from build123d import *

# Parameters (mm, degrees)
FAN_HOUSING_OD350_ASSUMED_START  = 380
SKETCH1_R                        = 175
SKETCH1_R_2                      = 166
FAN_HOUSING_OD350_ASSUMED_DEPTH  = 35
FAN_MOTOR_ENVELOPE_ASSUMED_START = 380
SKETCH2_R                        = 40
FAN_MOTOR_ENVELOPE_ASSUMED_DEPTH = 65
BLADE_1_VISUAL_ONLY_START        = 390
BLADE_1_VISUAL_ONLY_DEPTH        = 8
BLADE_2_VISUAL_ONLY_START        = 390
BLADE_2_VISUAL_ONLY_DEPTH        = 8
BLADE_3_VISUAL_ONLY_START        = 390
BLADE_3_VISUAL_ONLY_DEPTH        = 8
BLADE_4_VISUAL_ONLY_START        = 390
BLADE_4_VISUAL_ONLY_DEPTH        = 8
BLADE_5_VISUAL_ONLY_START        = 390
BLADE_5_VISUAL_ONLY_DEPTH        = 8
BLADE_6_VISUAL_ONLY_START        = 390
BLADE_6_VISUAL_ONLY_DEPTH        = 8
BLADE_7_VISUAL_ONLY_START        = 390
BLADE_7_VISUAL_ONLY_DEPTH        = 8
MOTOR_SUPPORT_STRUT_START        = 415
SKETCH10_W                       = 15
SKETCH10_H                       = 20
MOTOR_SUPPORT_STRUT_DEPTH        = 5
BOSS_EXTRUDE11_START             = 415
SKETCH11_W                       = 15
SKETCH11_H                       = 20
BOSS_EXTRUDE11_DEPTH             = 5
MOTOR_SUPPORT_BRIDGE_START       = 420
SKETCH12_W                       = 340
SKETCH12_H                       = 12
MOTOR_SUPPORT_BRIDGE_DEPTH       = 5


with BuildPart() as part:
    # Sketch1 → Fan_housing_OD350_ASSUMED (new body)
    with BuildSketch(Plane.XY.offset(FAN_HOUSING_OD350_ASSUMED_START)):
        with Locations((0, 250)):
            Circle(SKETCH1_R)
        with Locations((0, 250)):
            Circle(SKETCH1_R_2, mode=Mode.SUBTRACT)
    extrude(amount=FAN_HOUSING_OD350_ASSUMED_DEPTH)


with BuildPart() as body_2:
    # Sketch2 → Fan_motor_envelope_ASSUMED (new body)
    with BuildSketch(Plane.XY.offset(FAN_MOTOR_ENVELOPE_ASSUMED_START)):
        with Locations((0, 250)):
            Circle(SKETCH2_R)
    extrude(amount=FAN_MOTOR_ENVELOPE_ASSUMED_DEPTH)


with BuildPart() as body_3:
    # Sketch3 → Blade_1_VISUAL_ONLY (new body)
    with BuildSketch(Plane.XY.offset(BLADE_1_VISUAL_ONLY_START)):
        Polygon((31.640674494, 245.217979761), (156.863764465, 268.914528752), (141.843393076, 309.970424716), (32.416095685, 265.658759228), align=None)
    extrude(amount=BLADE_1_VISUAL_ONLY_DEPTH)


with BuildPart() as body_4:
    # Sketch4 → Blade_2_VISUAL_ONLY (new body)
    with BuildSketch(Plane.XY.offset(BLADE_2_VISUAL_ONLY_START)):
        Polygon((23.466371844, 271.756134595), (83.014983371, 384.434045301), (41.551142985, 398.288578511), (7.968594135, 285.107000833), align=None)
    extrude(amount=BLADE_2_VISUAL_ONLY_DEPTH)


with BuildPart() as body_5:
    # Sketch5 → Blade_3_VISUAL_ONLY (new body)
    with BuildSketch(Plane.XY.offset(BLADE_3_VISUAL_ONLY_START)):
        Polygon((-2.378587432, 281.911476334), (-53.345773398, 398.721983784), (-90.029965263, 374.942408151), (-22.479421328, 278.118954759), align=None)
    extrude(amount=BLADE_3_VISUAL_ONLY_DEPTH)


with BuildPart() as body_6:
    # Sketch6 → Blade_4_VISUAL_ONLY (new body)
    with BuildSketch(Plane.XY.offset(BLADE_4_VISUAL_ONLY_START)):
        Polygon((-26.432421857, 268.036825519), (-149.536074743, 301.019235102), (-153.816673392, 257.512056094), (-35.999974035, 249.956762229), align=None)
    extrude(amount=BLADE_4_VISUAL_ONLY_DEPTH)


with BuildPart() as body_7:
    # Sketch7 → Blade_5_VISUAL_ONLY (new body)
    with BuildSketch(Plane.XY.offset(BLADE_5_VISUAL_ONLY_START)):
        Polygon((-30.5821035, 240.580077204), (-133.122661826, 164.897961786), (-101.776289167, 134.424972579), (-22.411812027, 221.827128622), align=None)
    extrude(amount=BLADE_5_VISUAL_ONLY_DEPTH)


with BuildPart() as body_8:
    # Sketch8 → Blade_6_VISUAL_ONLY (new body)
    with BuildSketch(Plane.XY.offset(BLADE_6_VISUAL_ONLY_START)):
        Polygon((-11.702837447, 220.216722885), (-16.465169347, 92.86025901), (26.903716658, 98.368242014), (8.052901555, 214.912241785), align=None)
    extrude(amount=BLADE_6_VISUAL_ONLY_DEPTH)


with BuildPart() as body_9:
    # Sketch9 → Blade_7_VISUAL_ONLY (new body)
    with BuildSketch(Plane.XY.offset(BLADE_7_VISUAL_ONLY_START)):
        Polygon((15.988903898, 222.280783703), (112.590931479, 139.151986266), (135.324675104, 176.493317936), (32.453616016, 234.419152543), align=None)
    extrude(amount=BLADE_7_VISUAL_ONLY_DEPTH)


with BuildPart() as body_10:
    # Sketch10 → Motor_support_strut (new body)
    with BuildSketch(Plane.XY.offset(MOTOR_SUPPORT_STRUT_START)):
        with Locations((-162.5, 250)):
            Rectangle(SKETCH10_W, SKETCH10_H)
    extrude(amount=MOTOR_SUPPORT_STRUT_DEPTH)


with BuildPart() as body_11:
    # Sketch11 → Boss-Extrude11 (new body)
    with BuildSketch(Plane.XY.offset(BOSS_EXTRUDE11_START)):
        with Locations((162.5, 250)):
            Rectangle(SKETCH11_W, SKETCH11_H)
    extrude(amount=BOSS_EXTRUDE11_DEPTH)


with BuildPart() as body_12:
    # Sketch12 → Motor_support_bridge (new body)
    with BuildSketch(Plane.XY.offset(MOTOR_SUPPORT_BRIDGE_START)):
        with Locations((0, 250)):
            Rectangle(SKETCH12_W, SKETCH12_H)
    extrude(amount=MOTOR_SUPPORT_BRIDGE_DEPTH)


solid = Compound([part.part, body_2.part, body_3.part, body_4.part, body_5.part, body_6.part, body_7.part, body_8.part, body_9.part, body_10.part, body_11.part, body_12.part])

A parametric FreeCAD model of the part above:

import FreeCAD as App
import Part
import Sketcher
from FreeCAD import Vector


def add_polygon(sketch, points):
    """Adds a closed chain of lines whose ends are joined by coincident constraints."""
    first, n = sketch.GeometryCount, len(points)
    for a, b in zip(points, points[1:] + points[:1]):
        sketch.addGeometry(Part.LineSegment(App.Vector(*a, 0), App.Vector(*b, 0)), False)
    for i in range(n):
        sketch.addConstraint(Sketcher.Constraint("Coincident", first + i, 2, first + (i + 1) % n, 1))

doc = App.newDocument("Part")
body = doc.addObject("PartDesign::Body", "Body")

# Sketch on XY plane
sketch1 = doc.addObject("Sketcher::SketchObject", "Sketch")
body.addObject(sketch1)
sketch1.AttachmentSupport = (doc.XY_Plane, [""])
sketch1.MapMode = "FlatFace"
sketch1.AttachmentOffset = App.Placement(Vector(0, 0, 380), App.Rotation())
sketch1.addGeometry([
    Part.Circle(Vector(0, 250, 0), Vector(0, 0, 1), 175),
    Part.Circle(Vector(0, 250, 0), Vector(0, 0, 1), 166),
], False)
sketch1.addConstraint([
    Sketcher.Constraint("Coincident", 1, 3, 0, 3),
    Sketcher.Constraint("PointOnObject", 0, 3, -2),
    Sketcher.Constraint("Diameter", 0, 350.0),
    Sketcher.Constraint("Diameter", 1, 332.0),
    Sketcher.Constraint("DistanceY", -1, 1, 0, 3, 250.0),
])
pad1 = doc.addObject("PartDesign::Pad", "Pad")
body.addObject(pad1)
pad1.Profile = sketch1
pad1.Length = 35
body2 = doc.addObject("PartDesign::Body", "Body001")

# Sketch on XY plane
sketch2 = doc.addObject("Sketcher::SketchObject", "Sketch001")
body2.addObject(sketch2)
sketch2.AttachmentSupport = (doc.getObject("XY_Plane001"), [""])
sketch2.MapMode = "FlatFace"
sketch2.AttachmentOffset = App.Placement(Vector(0, 0, 380), App.Rotation())
sketch2.addGeometry(Part.Circle(Vector(0, 250, 0), Vector(0, 0, 1), 40), False)
sketch2.addConstraint([
    Sketcher.Constraint("PointOnObject", 0, 3, -2),
    Sketcher.Constraint("Diameter", 0, 80.0),
    Sketcher.Constraint("DistanceY", -1, 1, 0, 3, 250.0),
])
pad2 = doc.addObject("PartDesign::Pad", "Pad001")
body2.addObject(pad2)
pad2.Profile = sketch2
pad2.Length = 65
body3 = doc.addObject("PartDesign::Body", "Body002")

# Sketch on XY plane
sketch3 = doc.addObject("Sketcher::SketchObject", "Sketch002")
body3.addObject(sketch3)
sketch3.AttachmentSupport = (doc.getObject("XY_Plane002"), [""])
sketch3.MapMode = "FlatFace"
sketch3.AttachmentOffset = App.Placement(Vector(0, 0, 390), App.Rotation())
add_polygon(sketch3, [(31.640674, 245.21798), (156.863764, 268.914529), (141.843393, 309.970425), (32.416096, 265.658759)])  # lines 0-3
sketch3.addConstraint([
    Sketcher.Constraint("Distance", 2, 118.058702),
    Sketcher.Constraint("Distance", 3, 20.455482),
    Sketcher.Constraint("DistanceY", -1, 1, 0, 2, 268.914529),
    Sketcher.Constraint("DistanceY", -1, 1, 2, 2, 265.658759),
    Sketcher.Constraint("DistanceY", -1, 1, 3, 2, 245.21798),
    Sketcher.Constraint("DistanceX", 1, 2, 0, 2, 15.020371),
    Sketcher.Constraint("DistanceX", 2, 2, 0, 2, 124.447669),
    Sketcher.Constraint("DistanceX", -1, 1, 0, 2, 156.863764),
])
pad3 = doc.addObject("PartDesign::Pad", "Pad002")
body3.addObject(pad3)
pad3.Profile = sketch3
pad3.Length = 8
body4 = doc.addObject("PartDesign::Body", "Body003")

# Sketch on XY plane
sketch4 = doc.addObject("Sketcher::SketchObject", "Sketch003")
body4.addObject(sketch4)
sketch4.AttachmentSupport = (doc.getObject("XY_Plane003"), [""])
sketch4.MapMode = "FlatFace"
sketch4.AttachmentOffset = App.Placement(Vector(0, 0, 390), App.Rotation())
add_polygon(sketch4, [(23, 272), (83, 384), (42, 398), (8, 285)])  # lines 0-3
sketch4.addConstraint([
    Sketcher.Constraint("DistanceY", -1, 1, 2, 2, 285.107001),
    Sketcher.Constraint("Distance", 2, 118.058702),
    Sketcher.Constraint("Distance", 3, 20.455482),
    Sketcher.Constraint("DistanceY", -1, 1, 1, 2, 398.288579),
    Sketcher.Constraint("DistanceX", -1, 1, 3, 2, 23.466372),
    Sketcher.Constraint("DistanceX", 1, 2, 0, 2, 41.46384),
    Sketcher.Constraint("DistanceX", 3, 2, 0, 2, 59.548612),
    Sketcher.Constraint("DistanceY", 3, 2, 0, 2, 112.677911),
])
pad4 = doc.addObject("PartDesign::Pad", "Pad003")
body4.addObject(pad4)
pad4.Profile = sketch4
pad4.Length = 8
body5 = doc.addObject("PartDesign::Body", "Body004")

# Sketch on XY plane
sketch5 = doc.addObject("Sketcher::SketchObject", "Sketch004")
body5.addObject(sketch5)
sketch5.AttachmentSupport = (doc.getObject("XY_Plane004"), [""])
sketch5.MapMode = "FlatFace"
sketch5.AttachmentOffset = App.Placement(Vector(0, 0, 390), App.Rotation())
add_polygon(sketch5, [(-2, 282), (-53, 399), (-90, 375), (-22, 278)])  # lines 0-3
sketch5.addConstraint([
    Sketcher.Constraint("Distance", 2, 118.058702),
    Sketcher.Constraint("Distance", 3, 20.455482),
    Sketcher.Constraint("DistanceY", -1, 1, 1, 2, 374.942408),
    Sketcher.Constraint("DistanceX", 2, 2, -1, 1, 22.479421),
    Sketcher.Constraint("DistanceX", 1, 2, 0, 2, 36.684192),
    Sketcher.Constraint("DistanceY", 2, 2, 0, 2, 120.603029),
    Sketcher.Constraint("DistanceY", 2, 2, 3, 2, 3.792522),
    Sketcher.Constraint("DistanceY", 3, 2, 1, 2, 93.030932),
])
pad5 = doc.addObject("PartDesign::Pad", "Pad004")
body5.addObject(pad5)
pad5.Profile = sketch5
pad5.Length = 8
body6 = doc.addObject("PartDesign::Body", "Body005")

# Sketch on XY plane
sketch6 = doc.addObject("Sketcher::SketchObject", "Sketch005")
body6.addObject(sketch6)
sketch6.AttachmentSupport = (doc.getObject("XY_Plane005"), [""])
sketch6.MapMode = "FlatFace"
sketch6.AttachmentOffset = App.Placement(Vector(0, 0, 390), App.Rotation())
add_polygon(sketch6, [(-26, 268), (-150, 301), (-154, 258), (-36, 250)])  # lines 0-3
sketch6.addConstraint([
    Sketcher.Constraint("Distance", 2, 118.058702),
    Sketcher.Constraint("DistanceX", 1, 2, 0, 2, 4.280599),
    Sketcher.Constraint("DistanceX", 1, 2, 2, 2, 117.816699),
    Sketcher.Constraint("Distance", 3, 20.455482),
    Sketcher.Constraint("DistanceX", 3, 2, -1, 1, 26.432422),
    Sketcher.Constraint("DistanceY", 1, 2, 0, 2, 43.507179),
    Sketcher.Constraint("DistanceY", 3, 2, 0, 2, 32.98241),
    Sketcher.Constraint("DistanceY", -1, 1, 0, 2, 301.019235),
])
pad6 = doc.addObject("PartDesign::Pad", "Pad005")
body6.addObject(pad6)
pad6.Profile = sketch6
pad6.Length = 8
body7 = doc.addObject("PartDesign::Body", "Body006")

# Sketch on XY plane
sketch7 = doc.addObject("Sketcher::SketchObject", "Sketch006")
body7.addObject(sketch7)
sketch7.AttachmentSupport = (doc.getObject("XY_Plane006"), [""])
sketch7.MapMode = "FlatFace"
sketch7.AttachmentOffset = App.Placement(Vector(0, 0, 390), App.Rotation())
add_polygon(sketch7, [(-31, 241), (-133, 165), (-102, 134), (-22, 222)])  # lines 0-3
sketch7.addConstraint([
    Sketcher.Constraint("Distance", 2, 118.058702),
    Sketcher.Constraint("Distance", 3, 20.455482),
    Sketcher.Constraint("DistanceX", 0, 2, -1, 1, 133.122662),
    Sketcher.Constraint("DistanceY", -1, 1, 0, 2, 164.897962),
    Sketcher.Constraint("DistanceX", 1, 2, -1, 1, 101.776289),
    Sketcher.Constraint("DistanceY", -1, 1, 2, 2, 221.827129),
    Sketcher.Constraint("DistanceY", 1, 2, 0, 2, 30.472989),
    Sketcher.Constraint("DistanceX", 3, 2, 2, 2, 8.170291),
])
pad7 = doc.addObject("PartDesign::Pad", "Pad006")
body7.addObject(pad7)
pad7.Profile = sketch7
pad7.Length = 8
body8 = doc.addObject("PartDesign::Body", "Body007")

# Sketch on XY plane
sketch8 = doc.addObject("Sketcher::SketchObject", "Sketch007")
body8.addObject(sketch8)
sketch8.AttachmentSupport = (doc.getObject("XY_Plane007"), [""])
sketch8.MapMode = "FlatFace"
sketch8.AttachmentOffset = App.Placement(Vector(0, 0, 390), App.Rotation())
add_polygon(sketch8, [(-12, 220), (-16, 93), (27, 98), (8, 215)])  # lines 0-3
sketch8.addConstraint([
    Sketcher.Constraint("DistanceY", 1, 2, 2, 2, 116.544),
    Sketcher.Constraint("Distance", 2, 118.058702),
    Sketcher.Constraint("DistanceX", -1, 1, 2, 2, 8.052902),
    Sketcher.Constraint("Distance", 3, 20.455482),
    Sketcher.Constraint("DistanceX", 0, 2, -1, 1, 16.465169),
    Sketcher.Constraint("DistanceY", -1, 1, 0, 2, 92.860259),
    Sketcher.Constraint("DistanceY", -1, 1, 2, 2, 214.912242),
    Sketcher.Constraint("DistanceX", 3, 2, 2, 2, 19.755739),
])
pad8 = doc.addObject("PartDesign::Pad", "Pad007")
body8.addObject(pad8)
pad8.Profile = sketch8
pad8.Length = 8
body9 = doc.addObject("PartDesign::Body", "Body008")

# Sketch on XY plane
sketch9 = doc.addObject("Sketcher::SketchObject", "Sketch008")
body9.addObject(sketch9)
sketch9.AttachmentSupport = (doc.getObject("XY_Plane008"), [""])
sketch9.MapMode = "FlatFace"
sketch9.AttachmentOffset = App.Placement(Vector(0, 0, 390), App.Rotation())
add_polygon(sketch9, [(16, 222), (113, 139), (135, 176), (32, 234)])  # lines 0-3
sketch9.addConstraint([
    Sketcher.Constraint("Distance", 2, 118.058702),
    Sketcher.Constraint("Distance", 3, 20.455482),
    Sketcher.Constraint("DistanceX", -1, 1, 0, 2, 112.590931),
    Sketcher.Constraint("DistanceY", 0, 2, 1, 2, 37.341332),
    Sketcher.Constraint("DistanceX", 2, 2, 1, 2, 102.871059),
    Sketcher.Constraint("DistanceY", 3, 2, 2, 2, 12.138369),
    Sketcher.Constraint("Distance", 0, 127.445473),
    Sketcher.Constraint("DistanceY", -1, 1, 0, 2, 139.151986),
])
pad9 = doc.addObject("PartDesign::Pad", "Pad008")
body9.addObject(pad9)
pad9.Profile = sketch9
pad9.Length = 8
body10 = doc.addObject("PartDesign::Body", "Body009")

# Sketch on XY plane
sketch10 = doc.addObject("Sketcher::SketchObject", "Sketch009")
body10.addObject(sketch10)
sketch10.AttachmentSupport = (doc.getObject("XY_Plane009"), [""])
sketch10.MapMode = "FlatFace"
sketch10.AttachmentOffset = App.Placement(Vector(0, 0, 415), App.Rotation())
add_polygon(sketch10, [(-170, 260), (-170, 240), (-155, 240), (-155, 260)])  # lines 0-3
sketch10.addConstraint([
    Sketcher.Constraint("Vertical", 0),
    Sketcher.Constraint("Horizontal", 1),
    Sketcher.Constraint("Vertical", 2),
    Sketcher.Constraint("Horizontal", 3),
    Sketcher.Constraint("DistanceX", 1, 1, 1, 2, 15.0),
    Sketcher.Constraint("DistanceY", 0, 2, 0, 1, 20.0),
    Sketcher.Constraint("DistanceX", 0, 2, -1, 1, 170.0),
    Sketcher.Constraint("DistanceY", -1, 1, 0, 2, 240.0),
])
pad10 = doc.addObject("PartDesign::Pad", "Pad009")
body10.addObject(pad10)
pad10.Profile = sketch10
pad10.Length = 5
body11 = doc.addObject("PartDesign::Body", "Body010")

# Sketch on XY plane
sketch11 = doc.addObject("Sketcher::SketchObject", "Sketch010")
body11.addObject(sketch11)
sketch11.AttachmentSupport = (doc.getObject("XY_Plane010"), [""])
sketch11.MapMode = "FlatFace"
sketch11.AttachmentOffset = App.Placement(Vector(0, 0, 415), App.Rotation())
add_polygon(sketch11, [(155, 260), (155, 240), (170, 240), (170, 260)])  # lines 0-3
sketch11.addConstraint([
    Sketcher.Constraint("Vertical", 0),
    Sketcher.Constraint("Horizontal", 1),
    Sketcher.Constraint("Vertical", 2),
    Sketcher.Constraint("Horizontal", 3),
    Sketcher.Constraint("DistanceX", 1, 1, 1, 2, 15.0),
    Sketcher.Constraint("DistanceY", 0, 2, 0, 1, 20.0),
    Sketcher.Constraint("DistanceX", -1, 1, 0, 2, 155.0),
    Sketcher.Constraint("DistanceY", -1, 1, 0, 2, 240.0),
])
pad11 = doc.addObject("PartDesign::Pad", "Pad010")
body11.addObject(pad11)
pad11.Profile = sketch11
pad11.Length = 5
body12 = doc.addObject("PartDesign::Body", "Body011")

# Sketch on XY plane
sketch12 = doc.addObject("Sketcher::SketchObject", "Sketch011")
body12.addObject(sketch12)
sketch12.AttachmentSupport = (doc.getObject("XY_Plane011"), [""])
sketch12.MapMode = "FlatFace"
sketch12.AttachmentOffset = App.Placement(Vector(0, 0, 420), App.Rotation())
add_polygon(sketch12, [(-170, 256), (-170, 244), (170, 244), (170, 256)])  # lines 0-3
sketch12.addConstraint([
    Sketcher.Constraint("Vertical", 0),
    Sketcher.Constraint("Horizontal", 1),
    Sketcher.Constraint("Vertical", 2),
    Sketcher.Constraint("Horizontal", 3),
    Sketcher.Constraint("DistanceX", 1, 1, 1, 2, 340.0),
    Sketcher.Constraint("DistanceY", 0, 2, 0, 1, 12.0),
    Sketcher.Constraint("DistanceX", 0, 2, -1, 1, 170.0),
    Sketcher.Constraint("DistanceY", -1, 1, 0, 2, 244.0),
])
pad12 = doc.addObject("PartDesign::Pad", "Pad011")
body12.addObject(pad12)
pad12.Profile = sketch12
pad12.Length = 5

doc.recompute()
